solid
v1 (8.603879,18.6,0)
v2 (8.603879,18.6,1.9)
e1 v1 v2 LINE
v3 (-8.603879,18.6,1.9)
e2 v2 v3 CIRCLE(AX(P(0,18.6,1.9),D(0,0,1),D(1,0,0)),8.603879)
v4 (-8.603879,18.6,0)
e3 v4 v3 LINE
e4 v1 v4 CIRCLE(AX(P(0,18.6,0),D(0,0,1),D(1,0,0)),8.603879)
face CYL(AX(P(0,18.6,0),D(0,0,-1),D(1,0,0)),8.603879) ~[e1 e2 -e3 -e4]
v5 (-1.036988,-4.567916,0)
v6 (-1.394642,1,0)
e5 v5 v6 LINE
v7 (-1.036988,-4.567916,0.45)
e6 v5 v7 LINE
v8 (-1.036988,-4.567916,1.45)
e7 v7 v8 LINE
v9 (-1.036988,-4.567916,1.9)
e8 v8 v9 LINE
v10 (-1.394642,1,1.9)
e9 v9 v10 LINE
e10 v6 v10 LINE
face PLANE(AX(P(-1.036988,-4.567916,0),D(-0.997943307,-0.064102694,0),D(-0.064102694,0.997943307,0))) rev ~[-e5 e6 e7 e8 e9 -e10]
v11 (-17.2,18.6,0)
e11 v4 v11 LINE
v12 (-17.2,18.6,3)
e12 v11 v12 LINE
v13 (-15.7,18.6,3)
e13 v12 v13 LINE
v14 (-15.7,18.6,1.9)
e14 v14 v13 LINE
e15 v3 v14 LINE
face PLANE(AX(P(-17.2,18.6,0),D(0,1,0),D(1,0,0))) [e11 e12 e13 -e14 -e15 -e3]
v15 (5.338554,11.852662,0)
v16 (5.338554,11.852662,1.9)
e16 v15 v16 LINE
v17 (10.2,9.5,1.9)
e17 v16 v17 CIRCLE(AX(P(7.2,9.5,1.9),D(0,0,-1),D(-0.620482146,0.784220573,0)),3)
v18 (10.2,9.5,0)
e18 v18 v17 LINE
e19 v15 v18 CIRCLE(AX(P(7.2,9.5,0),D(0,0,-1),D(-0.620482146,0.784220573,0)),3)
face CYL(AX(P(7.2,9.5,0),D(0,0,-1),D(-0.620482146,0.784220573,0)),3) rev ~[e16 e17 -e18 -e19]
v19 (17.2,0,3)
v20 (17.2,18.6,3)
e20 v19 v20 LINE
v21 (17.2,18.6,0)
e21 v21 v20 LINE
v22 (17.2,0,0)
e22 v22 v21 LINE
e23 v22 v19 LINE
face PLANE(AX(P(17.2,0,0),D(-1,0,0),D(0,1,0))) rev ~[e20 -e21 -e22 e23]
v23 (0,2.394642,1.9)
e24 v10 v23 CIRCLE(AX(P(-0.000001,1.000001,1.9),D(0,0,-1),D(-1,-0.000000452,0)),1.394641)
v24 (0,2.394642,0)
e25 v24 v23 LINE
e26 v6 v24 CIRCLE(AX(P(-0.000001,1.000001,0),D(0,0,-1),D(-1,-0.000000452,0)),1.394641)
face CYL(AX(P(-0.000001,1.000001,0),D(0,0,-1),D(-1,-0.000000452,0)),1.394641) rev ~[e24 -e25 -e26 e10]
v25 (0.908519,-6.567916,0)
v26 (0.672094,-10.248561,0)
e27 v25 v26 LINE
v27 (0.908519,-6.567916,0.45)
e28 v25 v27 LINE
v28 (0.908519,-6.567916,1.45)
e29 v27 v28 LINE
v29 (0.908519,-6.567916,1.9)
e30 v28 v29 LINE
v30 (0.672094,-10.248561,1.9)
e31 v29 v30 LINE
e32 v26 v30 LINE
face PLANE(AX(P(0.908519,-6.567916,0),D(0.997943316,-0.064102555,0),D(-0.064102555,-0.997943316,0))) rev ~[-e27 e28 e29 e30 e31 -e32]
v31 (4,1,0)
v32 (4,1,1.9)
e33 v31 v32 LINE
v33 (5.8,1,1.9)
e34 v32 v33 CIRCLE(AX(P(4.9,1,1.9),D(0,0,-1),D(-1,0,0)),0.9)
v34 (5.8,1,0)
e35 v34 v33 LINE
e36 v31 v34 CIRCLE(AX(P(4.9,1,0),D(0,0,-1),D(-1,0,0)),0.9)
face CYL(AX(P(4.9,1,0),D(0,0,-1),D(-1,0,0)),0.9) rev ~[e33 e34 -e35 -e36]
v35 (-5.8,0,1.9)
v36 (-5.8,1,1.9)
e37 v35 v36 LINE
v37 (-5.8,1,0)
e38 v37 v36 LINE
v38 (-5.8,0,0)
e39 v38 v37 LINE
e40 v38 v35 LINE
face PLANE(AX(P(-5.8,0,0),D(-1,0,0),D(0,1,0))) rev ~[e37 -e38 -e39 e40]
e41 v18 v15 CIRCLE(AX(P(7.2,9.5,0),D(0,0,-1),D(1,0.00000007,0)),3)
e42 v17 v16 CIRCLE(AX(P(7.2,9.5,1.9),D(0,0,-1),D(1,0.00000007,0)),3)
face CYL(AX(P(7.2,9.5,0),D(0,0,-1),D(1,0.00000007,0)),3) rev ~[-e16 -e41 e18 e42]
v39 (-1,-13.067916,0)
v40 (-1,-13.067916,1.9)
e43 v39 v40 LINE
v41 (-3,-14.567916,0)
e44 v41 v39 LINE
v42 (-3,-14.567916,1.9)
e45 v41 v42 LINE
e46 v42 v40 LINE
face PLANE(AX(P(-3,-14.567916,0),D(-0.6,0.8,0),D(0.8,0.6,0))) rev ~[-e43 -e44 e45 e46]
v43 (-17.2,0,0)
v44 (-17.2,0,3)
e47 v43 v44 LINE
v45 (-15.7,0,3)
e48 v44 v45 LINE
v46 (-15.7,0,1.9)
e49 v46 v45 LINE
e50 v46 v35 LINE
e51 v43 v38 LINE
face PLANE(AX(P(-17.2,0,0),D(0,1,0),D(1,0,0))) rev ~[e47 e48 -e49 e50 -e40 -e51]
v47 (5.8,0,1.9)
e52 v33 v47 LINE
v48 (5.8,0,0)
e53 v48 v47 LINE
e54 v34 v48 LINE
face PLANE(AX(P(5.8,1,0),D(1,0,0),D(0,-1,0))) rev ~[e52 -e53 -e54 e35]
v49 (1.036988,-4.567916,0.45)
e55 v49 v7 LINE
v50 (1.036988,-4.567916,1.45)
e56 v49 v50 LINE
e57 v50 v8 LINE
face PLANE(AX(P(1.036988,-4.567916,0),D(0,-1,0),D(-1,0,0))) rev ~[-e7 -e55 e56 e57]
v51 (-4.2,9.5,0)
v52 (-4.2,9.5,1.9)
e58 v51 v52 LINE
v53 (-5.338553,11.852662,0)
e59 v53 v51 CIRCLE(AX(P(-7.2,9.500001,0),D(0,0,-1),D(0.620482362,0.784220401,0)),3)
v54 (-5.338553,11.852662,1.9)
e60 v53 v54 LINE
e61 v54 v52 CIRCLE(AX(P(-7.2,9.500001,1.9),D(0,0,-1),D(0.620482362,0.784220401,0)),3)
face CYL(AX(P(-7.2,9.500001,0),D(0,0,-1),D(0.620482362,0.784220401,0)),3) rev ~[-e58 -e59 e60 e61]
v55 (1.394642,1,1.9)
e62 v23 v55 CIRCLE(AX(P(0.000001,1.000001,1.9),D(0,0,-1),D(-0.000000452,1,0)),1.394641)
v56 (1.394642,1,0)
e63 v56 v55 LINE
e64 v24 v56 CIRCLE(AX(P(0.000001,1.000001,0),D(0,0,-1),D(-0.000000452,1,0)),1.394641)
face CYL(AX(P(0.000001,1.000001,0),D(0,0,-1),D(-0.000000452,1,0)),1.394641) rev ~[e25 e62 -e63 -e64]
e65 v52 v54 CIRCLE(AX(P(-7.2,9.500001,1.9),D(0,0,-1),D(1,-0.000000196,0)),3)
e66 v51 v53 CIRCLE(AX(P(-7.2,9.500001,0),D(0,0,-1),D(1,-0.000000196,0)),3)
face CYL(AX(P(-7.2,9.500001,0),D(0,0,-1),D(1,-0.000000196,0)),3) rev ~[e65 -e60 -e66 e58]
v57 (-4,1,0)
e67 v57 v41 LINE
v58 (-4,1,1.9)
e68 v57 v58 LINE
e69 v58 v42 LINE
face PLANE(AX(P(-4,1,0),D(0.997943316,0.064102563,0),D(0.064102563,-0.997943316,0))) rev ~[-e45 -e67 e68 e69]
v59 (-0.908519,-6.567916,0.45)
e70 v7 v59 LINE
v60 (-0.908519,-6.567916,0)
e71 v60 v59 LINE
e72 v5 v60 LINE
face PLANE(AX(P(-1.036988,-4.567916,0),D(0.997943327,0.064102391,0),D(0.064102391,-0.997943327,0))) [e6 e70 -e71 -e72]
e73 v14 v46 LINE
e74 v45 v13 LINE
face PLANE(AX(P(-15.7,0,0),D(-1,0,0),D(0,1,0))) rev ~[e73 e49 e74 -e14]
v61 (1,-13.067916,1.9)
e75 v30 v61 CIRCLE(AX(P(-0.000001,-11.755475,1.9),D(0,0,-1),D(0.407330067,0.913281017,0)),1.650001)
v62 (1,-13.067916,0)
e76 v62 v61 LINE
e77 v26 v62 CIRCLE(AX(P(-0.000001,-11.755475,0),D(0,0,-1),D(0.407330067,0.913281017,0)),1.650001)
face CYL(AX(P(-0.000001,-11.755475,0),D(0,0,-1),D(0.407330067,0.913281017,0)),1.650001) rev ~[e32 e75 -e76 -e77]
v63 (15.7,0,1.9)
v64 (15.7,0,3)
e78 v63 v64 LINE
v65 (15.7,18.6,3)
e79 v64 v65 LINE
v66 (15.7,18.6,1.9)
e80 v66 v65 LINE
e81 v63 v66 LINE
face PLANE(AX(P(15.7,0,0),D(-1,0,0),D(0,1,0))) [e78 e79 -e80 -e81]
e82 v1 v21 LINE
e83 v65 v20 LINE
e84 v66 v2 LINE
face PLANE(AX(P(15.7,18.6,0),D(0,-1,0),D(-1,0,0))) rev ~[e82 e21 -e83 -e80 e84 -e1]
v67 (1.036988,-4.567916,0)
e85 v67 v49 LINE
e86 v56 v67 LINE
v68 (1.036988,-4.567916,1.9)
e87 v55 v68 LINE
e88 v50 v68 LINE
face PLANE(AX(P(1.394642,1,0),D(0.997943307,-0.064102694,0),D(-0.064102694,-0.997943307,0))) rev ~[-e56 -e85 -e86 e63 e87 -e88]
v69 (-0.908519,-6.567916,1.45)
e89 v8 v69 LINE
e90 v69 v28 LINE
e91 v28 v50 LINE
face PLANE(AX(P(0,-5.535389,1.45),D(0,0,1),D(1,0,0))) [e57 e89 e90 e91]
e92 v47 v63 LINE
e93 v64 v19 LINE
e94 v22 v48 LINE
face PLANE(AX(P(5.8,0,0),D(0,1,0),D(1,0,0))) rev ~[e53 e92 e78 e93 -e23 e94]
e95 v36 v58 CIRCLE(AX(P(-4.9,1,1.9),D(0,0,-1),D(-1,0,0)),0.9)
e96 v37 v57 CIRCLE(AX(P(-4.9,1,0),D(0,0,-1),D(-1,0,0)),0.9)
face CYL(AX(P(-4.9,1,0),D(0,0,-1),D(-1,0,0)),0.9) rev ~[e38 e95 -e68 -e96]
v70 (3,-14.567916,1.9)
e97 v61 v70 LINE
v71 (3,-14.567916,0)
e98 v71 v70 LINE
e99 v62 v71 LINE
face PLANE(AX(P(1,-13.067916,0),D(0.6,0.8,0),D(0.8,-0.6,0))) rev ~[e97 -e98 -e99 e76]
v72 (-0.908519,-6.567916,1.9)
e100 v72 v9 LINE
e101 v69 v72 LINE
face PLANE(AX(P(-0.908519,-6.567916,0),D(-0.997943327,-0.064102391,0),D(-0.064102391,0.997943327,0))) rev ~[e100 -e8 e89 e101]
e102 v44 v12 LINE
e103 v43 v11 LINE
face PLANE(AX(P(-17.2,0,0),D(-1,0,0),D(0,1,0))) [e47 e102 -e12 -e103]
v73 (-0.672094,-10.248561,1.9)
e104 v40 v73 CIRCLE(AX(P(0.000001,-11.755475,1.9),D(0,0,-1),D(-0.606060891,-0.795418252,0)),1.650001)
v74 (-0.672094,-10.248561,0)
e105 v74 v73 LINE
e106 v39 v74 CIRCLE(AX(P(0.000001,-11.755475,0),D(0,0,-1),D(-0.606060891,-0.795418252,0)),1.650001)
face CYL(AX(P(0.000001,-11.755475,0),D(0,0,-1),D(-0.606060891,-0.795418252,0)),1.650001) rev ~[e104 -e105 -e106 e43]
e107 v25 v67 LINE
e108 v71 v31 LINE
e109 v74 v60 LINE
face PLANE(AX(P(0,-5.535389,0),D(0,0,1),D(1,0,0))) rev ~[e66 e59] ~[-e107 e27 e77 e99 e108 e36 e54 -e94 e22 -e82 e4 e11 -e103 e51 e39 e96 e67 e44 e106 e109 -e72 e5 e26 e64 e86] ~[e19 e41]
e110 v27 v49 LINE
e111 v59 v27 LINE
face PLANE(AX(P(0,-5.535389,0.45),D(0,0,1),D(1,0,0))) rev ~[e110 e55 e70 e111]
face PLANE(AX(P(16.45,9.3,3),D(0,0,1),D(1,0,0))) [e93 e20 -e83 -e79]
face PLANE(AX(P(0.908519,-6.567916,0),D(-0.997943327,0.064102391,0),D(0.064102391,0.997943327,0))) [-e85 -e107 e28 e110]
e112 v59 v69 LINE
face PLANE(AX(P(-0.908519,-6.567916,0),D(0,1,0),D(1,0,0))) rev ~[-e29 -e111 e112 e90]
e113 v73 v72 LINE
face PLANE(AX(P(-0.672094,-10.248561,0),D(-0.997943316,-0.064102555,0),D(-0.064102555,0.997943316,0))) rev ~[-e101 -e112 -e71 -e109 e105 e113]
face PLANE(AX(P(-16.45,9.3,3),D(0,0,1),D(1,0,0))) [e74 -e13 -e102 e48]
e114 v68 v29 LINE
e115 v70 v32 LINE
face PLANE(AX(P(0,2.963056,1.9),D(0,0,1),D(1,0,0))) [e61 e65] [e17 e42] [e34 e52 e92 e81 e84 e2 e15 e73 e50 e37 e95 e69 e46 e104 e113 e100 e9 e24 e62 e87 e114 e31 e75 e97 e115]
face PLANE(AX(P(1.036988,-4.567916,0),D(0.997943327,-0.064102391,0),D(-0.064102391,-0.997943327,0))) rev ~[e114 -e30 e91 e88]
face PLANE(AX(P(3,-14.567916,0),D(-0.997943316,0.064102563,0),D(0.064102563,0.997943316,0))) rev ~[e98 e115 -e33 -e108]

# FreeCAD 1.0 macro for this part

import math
import FreeCAD as App
import Part
import Sketcher

V = App.Vector

doc = App.newDocument("Part")
body = doc.addObject("PartDesign::Body", "Body")

# Sketch on XY plane
sketch1 = body.newObject("Sketcher::SketchObject", "Sketch")
sketch1.AttachmentSupport = (doc.getObject("XY_Plane"), [""])
sketch1.MapMode = "FlatFace"
sketch1.addGeometry([
    Part.LineSegment(V(15.7, 18.6, 0), V(8.6, 18.6, 0)),  # 0
    Part.ArcOfCircle(Part.Circle(V(0, 18.6, 0), V(0, 0, 1), 8.6), math.radians(0), math.radians(180)),  # 1
    Part.LineSegment(V(-8.6, 18.6, 0), V(-15.7, 18.6, 0)),  # 2
    Part.LineSegment(V(-15.7, 18.6, 0), V(-15.7, 0, 0)),  # 3
    Part.LineSegment(V(-15.7, 0, 0), V(-5.8, 0, 0)),  # 4
    Part.LineSegment(V(-5.8, 0, 0), V(-5.8, 1, 0)),  # 5
    Part.ArcOfCircle(Part.Circle(V(-4.9, 1, 0), V(0, 0, 1), 0.9), math.radians(0), math.radians(180)),  # 6
    Part.LineSegment(V(-4, 1, 0), V(-3, -14.6, 0)),  # 7
    Part.LineSegment(V(-3, -14.6, 0), V(-1, -13.1, 0)),  # 8
    Part.ArcOfCircle(Part.Circle(V(0, -11.8, 0), V(0, 0, 1), 1.7), math.radians(114), math.radians(233)),  # 9
    Part.LineSegment(V(-0.7, -10.2, 0), V(-0.9, -6.6, 0)),  # 10
    Part.LineSegment(V(-0.9, -6.6, 0), V(-1, -4.6, 0)),  # 11
    Part.LineSegment(V(-1, -4.6, 0), V(-1.4, 1, 0)),  # 12
    Part.ArcOfCircle(Part.Circle(V(0, 1, 0), V(0, 0, 1), 1.4), math.radians(90), math.radians(180)),  # 13
    Part.ArcOfCircle(Part.Circle(V(0, 1, 0), V(0, 0, 1), 1.4), math.radians(0), math.radians(90)),  # 14
    Part.LineSegment(V(1.4, 1, 0), V(1, -4.6, 0)),  # 15
    Part.LineSegment(V(1, -4.6, 0), V(0.9, -6.6, 0)),  # 16
    Part.LineSegment(V(0.9, -6.6, 0), V(0.7, -10.2, 0)),  # 17
    Part.ArcOfCircle(Part.Circle(V(0, -11.8, 0), V(0, 0, 1), 1.7), math.radians(-53), math.radians(66)),  # 18
    Part.LineSegment(V(1, -13.1, 0), V(3, -14.6, 0)),  # 19
    Part.LineSegment(V(3, -14.6, 0), V(4, 1, 0)),  # 20
    Part.ArcOfCircle(Part.Circle(V(4.9, 1, 0), V(0, 0, 1), 0.9), math.radians(0), math.radians(180)),  # 21
    Part.LineSegment(V(5.8, 1, 0), V(5.8, 0, 0)),  # 22
    Part.LineSegment(V(5.8, 0, 0), V(15.7, 0, 0)),  # 23
    Part.LineSegment(V(15.7, 0, 0), V(15.7, 18.6, 0)),  # 24
    Part.ArcOfCircle(Part.Circle(V(7.2, 9.5, 0), V(0, 0, 1), 3), math.radians(128), math.radians(360)),  # 25
    Part.ArcOfCircle(Part.Circle(V(7.2, 9.5, 0), V(0, 0, 1), 3), math.radians(0), math.radians(128)),  # 26
    Part.ArcOfCircle(Part.Circle(V(-7.2, 9.5, 0), V(0, 0, 1), 3), math.radians(52), math.radians(360)),  # 27
    Part.ArcOfCircle(Part.Circle(V(-7.2, 9.5, 0), V(0, 0, 1), 3), math.radians(0), math.radians(52)),  # 28
], False)
sketch1.addConstraint([
    Sketcher.Constraint("Coincident", 0, 2, 1, 1),
    Sketcher.Constraint("Coincident", 1, 2, 2, 1),
    Sketcher.Constraint("Coincident", 2, 2, 3, 1),
    Sketcher.Constraint("Coincident", 3, 2, 4, 1),
    Sketcher.Constraint("Coincident", 4, 2, 5, 1),
    Sketcher.Constraint("Tangent", 5, 2, 6, 2),
    Sketcher.Constraint("Coincident", 6, 1, 7, 1),
    Sketcher.Constraint("Coincident", 7, 2, 8, 1),
    Sketcher.Constraint("Coincident", 8, 2, 9, 2),
    Sketcher.Constraint("Coincident", 9, 1, 10, 1),
    Sketcher.Constraint("Coincident", 10, 2, 11, 1),
    Sketcher.Constraint("Coincident", 11, 2, 12, 1),
    Sketcher.Constraint("Coincident", 12, 2, 13, 2),
    Sketcher.Constraint("Tangent", 13, 1, 14, 2),
    Sketcher.Constraint("Coincident", 14, 1, 15, 1),
    Sketcher.Constraint("Coincident", 15, 2, 16, 1),
    Sketcher.Constraint("Coincident", 16, 2, 17, 1),
    Sketcher.Constraint("Coincident", 17, 2, 18, 2),
    Sketcher.Constraint("Coincident", 18, 1, 19, 1),
    Sketcher.Constraint("Coincident", 19, 2, 20, 1),
    Sketcher.Constraint("Coincident", 20, 2, 21, 2),
    Sketcher.Constraint("Tangent", 21, 1, 22, 1),
    Sketcher.Constraint("Coincident", 22, 2, 23, 1),
    Sketcher.Constraint("Coincident", 23, 2, 24, 1),
    Sketcher.Constraint("Coincident", 24, 2, 0, 1),
    Sketcher.Constraint("Tangent", 25, 1, 26, 2),
    Sketcher.Constraint("Coincident", 26, 1, 25, 2),
    Sketcher.Constraint("Tangent", 27, 1, 28, 2),
    Sketcher.Constraint("Coincident", 28, 1, 27, 2),
    Sketcher.Constraint("Horizontal", 0),
    Sketcher.Constraint("Horizontal", 2),
    Sketcher.Constraint("Vertical", 3),
    Sketcher.Constraint("Horizontal", 4),
    Sketcher.Constraint("Vertical", 5),
    Sketcher.Constraint("Vertical", 22),
    Sketcher.Constraint("Horizontal", 23),
    Sketcher.Constraint("Vertical", 24),
    Sketcher.Constraint("Coincident", 18, 3, 9, 3),
    Sketcher.Constraint("Equal", 13, 14),
    Sketcher.Constraint("Equal", 9, 18),
    Sketcher.Constraint("Equal", 6, 21),
    Sketcher.Constraint("Equal", 26, 27),
    Sketcher.Constraint("Symmetric", 4, 2, 22, 2, -1, 1),
    Sketcher.Constraint("Symmetric", 25, 3, 27, 3, -2),
    Sketcher.Constraint("Symmetric", 0, 2, 1, 2, -2),
    Sketcher.Constraint("Symmetric", 12, 2, 14, 1, -2),
    Sketcher.Constraint("Symmetric", 11, 2, 15, 2, -2),
    Sketcher.Constraint("Symmetric", 10, 2, 16, 2, -2),
    Sketcher.Constraint("Symmetric", 9, 1, 17, 2, -2),
    Sketcher.Constraint("Symmetric", 7, 2, 19, 2, -2),
    Sketcher.Constraint("Symmetric", 3, 2, 23, 2, -2),
    Sketcher.Constraint("PointOnObject", 13, 1, -2),
    Sketcher.Constraint("Parallel", 7, 10),
    Sketcher.Constraint("Parallel", 10, 11),
    Sketcher.Constraint("Parallel", 11, 12),
    Sketcher.Constraint("Parallel", 17, 20),
    Sketcher.Constraint("Horizontal", 6, 3, 13, 3),
    Sketcher.Constraint("Horizontal", 14, 3, 21, 3),
    Sketcher.Constraint("Horizontal", 1, 3, 0, 2),
    Sketcher.Constraint("Horizontal", 5, 2, 6, 1),
    Sketcher.Constraint("Horizontal", 6, 1, 12, 2),
    Sketcher.Constraint("Horizontal", 8, 2, 18, 1),
    Sketcher.Constraint("Horizontal", 28, 3, 26, 1),
    Sketcher.Constraint("Horizontal", 25, 1, 27, 1),
    Sketcher.Constraint("Horizontal", 26, 1, 28, 1),
    Sketcher.Constraint("Radius", 25, 3.0),
    Sketcher.Constraint("Radius", 6, 0.9),
    Sketcher.Constraint("DistanceY", 5, 1, 5, 2, 1.0),
    Sketcher.Constraint("Radius", 9, 1.650001),
    Sketcher.Constraint("DistanceX", 4, 1, 4, 2, 9.9),
    Sketcher.Constraint("DistanceY", 3, 2, 3, 1, 18.6),
    Sketcher.Constraint("DistanceX", 6, 1, -1, 1, 4.0),
    Sketcher.Constraint("DistanceX", 7, 2, -1, 1, 3.0),
    Sketcher.Constraint("DistanceX", 8, 2, -1, 1, 1.0),
    Sketcher.Constraint("DistanceY", 10, 2, 11, 2, 2.0),
    Sketcher.Constraint("Distance", 7, 15.6),
    Sketcher.Constraint("Distance", 8, 2.5),
    Sketcher.Constraint("DistanceX", -1, 1, 25, 3, 7.2),
    Sketcher.Constraint("DistanceY", -1, 1, 25, 3, 9.5),
    Sketcher.Constraint("DistanceY", 8, 2, 10, 2, 6.5),
    Sketcher.Constraint("Radius", 1, 8.603879),
    Sketcher.Constraint("Radius", 13, 1.394641),
    Sketcher.Constraint("DistanceY", 26, 3, 25, 1, 2.352662),
])
pad1 = body.newObject("PartDesign::Pad", "Pad")
pad1.Profile = sketch1
pad1.Length = 1.9

# Sketch on XY plane
sketch2 = body.newObject("Sketcher::SketchObject", "Sketch001")
sketch2.AttachmentSupport = (doc.getObject("XY_Plane"), [""])
sketch2.MapMode = "FlatFace"
sketch2.addGeometry([
    Part.LineSegment(V(-17.2, 18.6, 0), V(-17.2, 0, 0)),  # 0
    Part.LineSegment(V(-17.2, 0, 0), V(-15.7, 0, 0)),  # 1
    Part.LineSegment(V(-15.7, 0, 0), V(-15.7, 18.6, 0)),  # 2
    Part.LineSegment(V(-15.7, 18.6, 0), V(-17.2, 18.6, 0)),  # 3
    Part.LineSegment(V(15.7, 18.6, 0), V(15.7, 0, 0)),  # 4
    Part.LineSegment(V(15.7, 0, 0), V(17.2, 0, 0)),  # 5
    Part.LineSegment(V(17.2, 0, 0), V(17.2, 18.6, 0)),  # 6
    Part.LineSegment(V(17.2, 18.6, 0), V(15.7, 18.6, 0)),  # 7
], False)
sketch2.addConstraint([
    Sketcher.Constraint("Coincident", 0, 2, 1, 1),
    Sketcher.Constraint("Coincident", 1, 2, 2, 1),
    Sketcher.Constraint("Coincident", 2, 2, 3, 1),
    Sketcher.Constraint("Coincident", 3, 2, 0, 1),
    Sketcher.Constraint("Coincident", 4, 2, 5, 1),
    Sketcher.Constraint("Coincident", 5, 2, 6, 1),
    Sketcher.Constraint("Coincident", 6, 2, 7, 1),
    Sketcher.Constraint("Coincident", 7, 2, 4, 1),
    Sketcher.Constraint("Vertical", 0),
    Sketcher.Constraint("Horizontal", 1),
    Sketcher.Constraint("Vertical", 2),
    Sketcher.Constraint("Horizontal", 3),
    Sketcher.Constraint("Vertical", 4),
    Sketcher.Constraint("Horizontal", 5),
    Sketcher.Constraint("Vertical", 6),
    Sketcher.Constraint("Horizontal", 7),
    Sketcher.Constraint("Symmetric", 1, 2, 4, 2, -1, 1),
    Sketcher.Constraint("Symmetric", 0, 2, 5, 2, -2),
    Sketcher.Constraint("Horizontal", 3, 2, 6, 2),
    Sketcher.Constraint("DistanceX", 1, 1, 1, 2, 1.5),
    Sketcher.Constraint("DistanceY", 0, 2, 0, 1, 18.6),
    Sketcher.Constraint("DistanceX", 0, 2, -1, 1, 17.2),
])
pad2 = body.newObject("PartDesign::Pad", "Pad001")
pad2.Profile = sketch2
pad2.Length = 3

# Sketch on XY plane
sketch3 = body.newObject("Sketcher::SketchObject", "Sketch002")
sketch3.AttachmentSupport = (doc.getObject("XY_Plane"), [""])
sketch3.MapMode = "FlatFace"
sketch3.addGeometry([
    Part.LineSegment(V(-1, -4.6, 0), V(-0.9, -6.6, 0)),
    Part.LineSegment(V(-0.9, -6.6, 0), V(0.9, -6.6, 0)),
    Part.LineSegment(V(0.9, -6.6, 0), V(1, -4.6, 0)),
    Part.LineSegment(V(1, -4.6, 0), V(-1, -4.6, 0)),
], False)
sketch3.addConstraint([
    Sketcher.Constraint("Coincident", 0, 2, 1, 1),
    Sketcher.Constraint("Coincident", 1, 2, 2, 1),
    Sketcher.Constraint("Coincident", 2, 2, 3, 1),
    Sketcher.Constraint("Coincident", 3, 2, 0, 1),
    Sketcher.Constraint("Horizontal", 1),
    Sketcher.Constraint("Horizontal", 3),
    Sketcher.Constraint("Equal", 0, 2),
    Sketcher.Constraint("DistanceY", 1, 2, 2, 2, 2.0),
    Sketcher.Constraint("Distance", 0, 2.004122),
    Sketcher.Constraint("DistanceX", 1, 1, 1, 2, 1.817038),
    Sketcher.Constraint("DistanceX", 0, 2, -1, 1, 0.908519),
    Sketcher.Constraint("DistanceY", 0, 2, -1, 1, 6.567916),
])
pad3 = body.newObject("PartDesign::Pad", "Pad002")
pad3.Profile = sketch3
pad3.Length = 1.45

# Sketch on XY plane
sketch4 = body.newObject("Sketcher::SketchObject", "Sketch003")
sketch4.AttachmentSupport = (doc.getObject("XY_Plane"), [""])
sketch4.MapMode = "FlatFace"
sketch4.addGeometry([
    Part.LineSegment(V(-1, -4.6, 0), V(-0.9, -6.6, 0)),
    Part.LineSegment(V(-0.9, -6.6, 0), V(0.9, -6.6, 0)),
    Part.LineSegment(V(0.9, -6.6, 0), V(1, -4.6, 0)),
    Part.LineSegment(V(1, -4.6, 0), V(-1, -4.6, 0)),
], False)
sketch4.addConstraint([
    Sketcher.Constraint("Coincident", 0, 2, 1, 1),
    Sketcher.Constraint("Coincident", 1, 2, 2, 1),
    Sketcher.Constraint("Coincident", 2, 2, 3, 1),
    Sketcher.Constraint("Coincident", 3, 2, 0, 1),
    Sketcher.Constraint("Horizontal", 1),
    Sketcher.Constraint("Horizontal", 3),
    Sketcher.Constraint("Equal", 0, 2),
    Sketcher.Constraint("DistanceY", 1, 2, 2, 2, 2.0),
    Sketcher.Constraint("Distance", 0, 2.004122),
    Sketcher.Constraint("DistanceX", 1, 1, 1, 2, 1.817038),
    Sketcher.Constraint("DistanceX", 0, 2, -1, 1, 0.908519),
    Sketcher.Constraint("DistanceY", 0, 2, -1, 1, 6.567916),
])
pocket1 = body.newObject("PartDesign::Pocket", "Pocket")
pocket1.Profile = sketch4
pocket1.Length = 0.45
pocket1.Reversed = True

doc.recompute()
